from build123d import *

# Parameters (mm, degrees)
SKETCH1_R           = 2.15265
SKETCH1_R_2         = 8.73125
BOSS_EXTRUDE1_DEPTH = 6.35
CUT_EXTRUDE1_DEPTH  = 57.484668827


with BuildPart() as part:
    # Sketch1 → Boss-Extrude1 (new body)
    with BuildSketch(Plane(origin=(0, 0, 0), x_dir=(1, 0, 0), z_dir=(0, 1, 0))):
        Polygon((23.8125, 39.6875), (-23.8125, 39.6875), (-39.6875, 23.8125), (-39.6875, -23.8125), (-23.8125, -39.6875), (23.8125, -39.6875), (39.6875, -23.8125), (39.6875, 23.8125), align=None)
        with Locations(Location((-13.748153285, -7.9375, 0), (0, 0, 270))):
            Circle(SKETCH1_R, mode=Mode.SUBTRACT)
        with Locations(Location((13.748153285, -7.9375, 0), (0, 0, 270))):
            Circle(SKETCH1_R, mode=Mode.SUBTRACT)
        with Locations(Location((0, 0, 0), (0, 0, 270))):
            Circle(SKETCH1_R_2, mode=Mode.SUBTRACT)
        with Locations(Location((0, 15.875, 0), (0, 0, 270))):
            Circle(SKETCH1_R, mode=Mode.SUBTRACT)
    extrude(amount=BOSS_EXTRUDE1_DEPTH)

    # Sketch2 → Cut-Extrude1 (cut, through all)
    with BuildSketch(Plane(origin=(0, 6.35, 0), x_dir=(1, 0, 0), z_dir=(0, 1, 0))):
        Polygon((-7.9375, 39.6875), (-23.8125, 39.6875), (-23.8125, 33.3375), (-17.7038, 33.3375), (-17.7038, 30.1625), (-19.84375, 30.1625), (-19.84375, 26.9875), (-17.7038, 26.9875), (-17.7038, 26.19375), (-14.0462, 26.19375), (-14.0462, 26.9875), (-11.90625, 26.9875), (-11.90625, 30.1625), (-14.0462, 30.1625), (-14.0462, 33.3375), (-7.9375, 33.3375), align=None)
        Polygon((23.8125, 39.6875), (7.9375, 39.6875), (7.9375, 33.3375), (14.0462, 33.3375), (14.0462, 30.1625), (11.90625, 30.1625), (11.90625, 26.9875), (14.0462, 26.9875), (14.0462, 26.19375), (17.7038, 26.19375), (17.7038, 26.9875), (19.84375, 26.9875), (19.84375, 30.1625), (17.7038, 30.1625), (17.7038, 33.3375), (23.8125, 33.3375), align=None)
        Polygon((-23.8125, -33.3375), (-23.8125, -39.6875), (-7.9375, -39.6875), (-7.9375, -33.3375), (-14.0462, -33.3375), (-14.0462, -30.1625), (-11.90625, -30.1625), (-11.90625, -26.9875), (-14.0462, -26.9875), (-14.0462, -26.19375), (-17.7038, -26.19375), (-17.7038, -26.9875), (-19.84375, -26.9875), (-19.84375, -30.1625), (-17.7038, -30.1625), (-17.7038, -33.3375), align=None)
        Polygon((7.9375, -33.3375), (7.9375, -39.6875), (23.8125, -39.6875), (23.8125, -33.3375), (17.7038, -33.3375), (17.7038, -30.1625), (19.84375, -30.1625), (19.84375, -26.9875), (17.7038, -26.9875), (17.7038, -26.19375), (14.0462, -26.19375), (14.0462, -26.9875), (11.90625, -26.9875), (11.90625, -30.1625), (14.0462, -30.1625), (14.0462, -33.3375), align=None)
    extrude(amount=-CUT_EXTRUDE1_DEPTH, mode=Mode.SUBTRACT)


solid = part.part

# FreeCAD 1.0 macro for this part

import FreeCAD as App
import Part
import Sketcher
from FreeCAD import Vector
Q = App.Units.Quantity


def add_polygon(sketch, points):
    """Adds a closed chain of lines whose ends are joined by coincident constraints."""
    first, n = sketch.GeometryCount, len(points)
    for a, b in zip(points, points[1:] + points[:1]):
        sketch.addGeometry(Part.LineSegment(App.Vector(*a, 0), App.Vector(*b, 0)), False)
    for i in range(n):
        sketch.addConstraint(Sketcher.Constraint("Coincident", first + i, 2, first + (i + 1) % n, 1))

doc = App.newDocument("Part")
body = doc.addObject("PartDesign::Body", "Body")

sketch1 = doc.addObject("Sketcher::SketchObject", "Sketch")
body.addObject(sketch1)
sketch1.AttachmentSupport = (doc.XZ_Plane, [""])
sketch1.MapMode = "FlatFace"
add_polygon(sketch1, [(23.8, -39.7), (-23.8, -39.7), (-39.7, -23.8), (-39.7, 23.8), (-23.8, 39.7), (23.8, 39.7), (39.7, 23.8), (39.7, -23.8)])
sketch1.addGeometry(Part.Circle(Vector(-13.7, 7.9, 0), Vector(0, 0, 1), 2.2), False)
sketch1.addGeometry(Part.Circle(Vector(0, 0, 0), Vector(0, 0, 1), 8.7), False)
sketch1.addGeometry(Part.Circle(Vector(13.7, 7.9, 0), Vector(0, 0, 1), 2.2), False)
sketch1.addGeometry(Part.Circle(Vector(0, -15.9, 0), Vector(0, 0, 1), 2.2), False)
sketch1.addConstraint([
    Sketcher.Constraint("Horizontal", 0),
    Sketcher.Constraint("Vertical", 2),
    Sketcher.Constraint("Horizontal", 4),
    Sketcher.Constraint("Vertical", 6),
    Sketcher.Constraint("Coincident", 9, 3, -1, 1),
    Sketcher.Constraint("Equal", 8, 10),
    Sketcher.Constraint("Equal", 10, 11),
    Sketcher.Constraint("Symmetric", 0, 2, 4, 2, -1, 1),
    Sketcher.Constraint("Symmetric", 1, 2, 5, 2, -1, 1),
    Sketcher.Constraint("Symmetric", 8, 3, 10, 3, -2),
    Sketcher.Constraint("PointOnObject", 11, 3, -2),
    Sketcher.Constraint("Perpendicular", 1, 3),
    Sketcher.Constraint("Perpendicular", 5, 7),
    Sketcher.Constraint("Horizontal", 2, 2, 5, 2),
    Sketcher.Constraint("Horizontal", 1, 2, 6, 2),
    Sketcher.Constraint("Vertical", 0, 2, 3, 2),
    Sketcher.Constraint("Equal", 4, 2),
    Sketcher.Constraint("Diameter", 9, Q("0.6875 in")),
    Sketcher.Constraint("Diameter", 8, Q("0.1695 in")),
    Sketcher.Constraint("DistanceX", 0, 2, 0, 1, Q("1.875 in")),
    Sketcher.Constraint("DistanceY", 1, 2, 8, 3, Q("1.25 in")),
    Sketcher.Constraint("DistanceY", 8, 3, 3, 2, Q("1.25 in")),
    Sketcher.Constraint("DistanceY", 11, 3, -1, 1, Q("0.625 in")),
    Sketcher.Constraint("DistanceX", 8, 3, -1, 1, 13.748153),
])
pad1 = doc.addObject("PartDesign::Pad", "Pad")
body.addObject(pad1)
pad1.Profile = sketch1
pad1.Length = Q("0.25 in")
pad1.Reversed = True

sketch2 = doc.addObject("Sketcher::SketchObject", "Sketch001")
body.addObject(sketch2)
sketch2.AttachmentSupport = (doc.XZ_Plane, [""])
sketch2.MapMode = "FlatFace"
sketch2.AttachmentOffset = App.Placement(Vector(0, 0, -0.25 * 25.4), App.Rotation())
add_polygon(sketch2, [(-7.9, -39.7), (-23.8, -39.7), (-23.8, -33.3), (-17.7, -33.3), (-17.7, -30.2), (-19.8, -30.2), (-19.8, -27), (-17.7, -27), (-17.7, -26.2), (-14, -26.2), (-14, -27), (-11.9, -27), (-11.9, -30.2), (-14, -30.2), (-14, -33.3), (-7.9, -33.3)])
add_polygon(sketch2, [(23.8, -39.7), (7.9, -39.7), (7.9, -33.3), (14, -33.3), (14, -30.2), (11.9, -30.2), (11.9, -27), (14, -27), (14, -26.2), (17.7, -26.2), (17.7, -27), (19.8, -27), (19.8, -30.2), (17.7, -30.2), (17.7, -33.3), (23.8, -33.3)])
add_polygon(sketch2, [(-23.8, 33.3), (-23.8, 39.7), (-7.9, 39.7), (-7.9, 33.3), (-14, 33.3), (-14, 30.2), (-11.9, 30.2), (-11.9, 27), (-14, 27), (-14, 26.2), (-17.7, 26.2), (-17.7, 27), (-19.8, 27), (-19.8, 30.2), (-17.7, 30.2), (-17.7, 33.3)])
add_polygon(sketch2, [(7.9, 33.3), (7.9, 39.7), (23.8, 39.7), (23.8, 33.3), (17.7, 33.3), (17.7, 30.2), (19.8, 30.2), (19.8, 27), (17.7, 27), (17.7, 26.2), (14, 26.2), (14, 27), (11.9, 27), (11.9, 30.2), (14, 30.2), (14, 33.3)])
sketch2.addConstraint([
    Sketcher.Constraint("Horizontal", 0),
    Sketcher.Constraint("Vertical", 1),
    Sketcher.Constraint("Horizontal", 2),
    Sketcher.Constraint("Vertical", 3),
    Sketcher.Constraint("Horizontal", 4),
    Sketcher.Constraint("Vertical", 5),
    Sketcher.Constraint("Horizontal", 6),
    Sketcher.Constraint("Vertical", 7),
    Sketcher.Constraint("Horizontal", 8),
    Sketcher.Constraint("Vertical", 9),
    Sketcher.Constraint("Horizontal", 10),
    Sketcher.Constraint("Vertical", 11),
    Sketcher.Constraint("Horizontal", 12),
    Sketcher.Constraint("Vertical", 13),
    Sketcher.Constraint("Horizontal", 14),
    Sketcher.Constraint("Vertical", 15),
    Sketcher.Constraint("Horizontal", 16),
    Sketcher.Constraint("Vertical", 17),
    Sketcher.Constraint("Horizontal", 18),
    Sketcher.Constraint("Vertical", 19),
    Sketcher.Constraint("Horizontal", 20),
    Sketcher.Constraint("Vertical", 21),
    Sketcher.Constraint("Horizontal", 22),
    Sketcher.Constraint("Vertical", 23),
    Sketcher.Constraint("Horizontal", 24),
    Sketcher.Constraint("Vertical", 25),
    Sketcher.Constraint("Horizontal", 26),
    Sketcher.Constraint("Vertical", 27),
    Sketcher.Constraint("Horizontal", 28),
    Sketcher.Constraint("Vertical", 29),
    Sketcher.Constraint("Horizontal", 30),
    Sketcher.Constraint("Vertical", 31),
    Sketcher.Constraint("Vertical", 32),
    Sketcher.Constraint("Horizontal", 33),
    Sketcher.Constraint("Vertical", 34),
    Sketcher.Constraint("Horizontal", 35),
    Sketcher.Constraint("Vertical", 36),
    Sketcher.Constraint("Horizontal", 37),
    Sketcher.Constraint("Vertical", 38),
    Sketcher.Constraint("Horizontal", 39),
    Sketcher.Constraint("Vertical", 40),
    Sketcher.Constraint("Horizontal", 41),
    Sketcher.Constraint("Vertical", 42),
    Sketcher.Constraint("Horizontal", 43),
    Sketcher.Constraint("Vertical", 44),
    Sketcher.Constraint("Horizontal", 45),
    Sketcher.Constraint("Vertical", 46),
    Sketcher.Constraint("Horizontal", 47),
    Sketcher.Constraint("Vertical", 48),
    Sketcher.Constraint("Horizontal", 49),
    Sketcher.Constraint("Vertical", 50),
    Sketcher.Constraint("Horizontal", 51),
    Sketcher.Constraint("Vertical", 52),
    Sketcher.Constraint("Horizontal", 53),
    Sketcher.Constraint("Vertical", 54),
    Sketcher.Constraint("Horizontal", 55),
    Sketcher.Constraint("Vertical", 56),
    Sketcher.Constraint("Horizontal", 57),
    Sketcher.Constraint("Vertical", 58),
    Sketcher.Constraint("Horizontal", 59),
    Sketcher.Constraint("Vertical", 60),
    Sketcher.Constraint("Horizontal", 61),
    Sketcher.Constraint("Vertical", 62),
    Sketcher.Constraint("Horizontal", 63),
    Sketcher.Constraint("Symmetric", 31, 2, 32, 2, -1, 1),
    Sketcher.Constraint("Symmetric", 17, 2, 34, 2, -1, 1),
    Sketcher.Constraint("Symmetric", 19, 2, 36, 2, -1, 1),
    Sketcher.Constraint("Symmetric", 21, 2, 38, 2, -1, 1),
    Sketcher.Constraint("Symmetric", 23, 2, 40, 2, -1, 1),
    Sketcher.Constraint("Symmetric", 25, 2, 42, 2, -1, 1),
    Sketcher.Constraint("Symmetric", 27, 2, 44, 2, -1, 1),
    Sketcher.Constraint("Symmetric", 29, 2, 46, 2, -1, 1),
    Sketcher.Constraint("Symmetric", 15, 2, 48, 2, -1, 1),
    Sketcher.Constraint("Symmetric", 1, 2, 50, 2, -1, 1),
    Sketcher.Constraint("Symmetric", 3, 2, 52, 2, -1, 1),
    Sketcher.Constraint("Symmetric", 5, 2, 54, 2, -1, 1),
    Sketcher.Constraint("Symmetric", 7, 2, 56, 2, -1, 1),
    Sketcher.Constraint("Symmetric", 9, 2, 58, 2, -1, 1),
    Sketcher.Constraint("Symmetric", 11, 2, 60, 2, -1, 1),
    Sketcher.Constraint("Symmetric", 13, 2, 62, 2, -1, 1),
    Sketcher.Constraint("Symmetric", 15, 2, 16, 2, -2),
    Sketcher.Constraint("Symmetric", 13, 2, 18, 2, -2),
    Sketcher.Constraint("Symmetric", 11, 2, 20, 2, -2),
    Sketcher.Constraint("Symmetric", 9, 2, 22, 2, -2),
    Sketcher.Constraint("Symmetric", 7, 2, 24, 2, -2),
    Sketcher.Constraint("Symmetric", 5, 2, 26, 2, -2),
    Sketcher.Constraint("Symmetric", 3, 2, 28, 2, -2),
    Sketcher.Constraint("Symmetric", 1, 2, 30, 2, -2),
    Sketcher.Constraint("Horizontal", 6, 2, 9, 2),
    Sketcher.Constraint("Horizontal", 4, 2, 11, 2),
    Sketcher.Constraint("Horizontal", 2, 2, 13, 2),
    Sketcher.Constraint("Vertical", 3, 2, 6, 2),
    Sketcher.Constraint("Vertical", 9, 2, 12, 2),
    Sketcher.Constraint("Equal", 6, 10),
    Sketcher.Constraint("Equal", 2, 14),
    Sketcher.Constraint("Equal", 3, 5),
    Sketcher.Constraint("DistanceY", 1, 1, 1, 2, Q("0.25 in")),
    Sketcher.Constraint("DistanceX", 0, 2, 0, 1, Q("0.625 in")),
    Sketcher.Constraint("DistanceX", 8, 1, 8, 2, Q("0.144 in")),
    Sketcher.Constraint("DistanceY", 3, 1, 3, 2, Q("0.125 in")),
    Sketcher.Constraint("DistanceY", 7, 1, 7, 2, Q("0.03125 in")),
    Sketcher.Constraint("DistanceX", 0, 2, -1, 1, Q("0.9375 in")),
    Sketcher.Constraint("DistanceY", 0, 2, -1, 1, Q("1.5625 in")),
    Sketcher.Constraint("DistanceX", 4, 2, -1, 1, Q("0.78125 in")),
])
pocket1 = doc.addObject("PartDesign::Pocket", "Pocket")
body.addObject(pocket1)
pocket1.Profile = sketch2
pocket1.Type = "ThroughAll"
pocket1.Reversed = True

doc.recompute()
